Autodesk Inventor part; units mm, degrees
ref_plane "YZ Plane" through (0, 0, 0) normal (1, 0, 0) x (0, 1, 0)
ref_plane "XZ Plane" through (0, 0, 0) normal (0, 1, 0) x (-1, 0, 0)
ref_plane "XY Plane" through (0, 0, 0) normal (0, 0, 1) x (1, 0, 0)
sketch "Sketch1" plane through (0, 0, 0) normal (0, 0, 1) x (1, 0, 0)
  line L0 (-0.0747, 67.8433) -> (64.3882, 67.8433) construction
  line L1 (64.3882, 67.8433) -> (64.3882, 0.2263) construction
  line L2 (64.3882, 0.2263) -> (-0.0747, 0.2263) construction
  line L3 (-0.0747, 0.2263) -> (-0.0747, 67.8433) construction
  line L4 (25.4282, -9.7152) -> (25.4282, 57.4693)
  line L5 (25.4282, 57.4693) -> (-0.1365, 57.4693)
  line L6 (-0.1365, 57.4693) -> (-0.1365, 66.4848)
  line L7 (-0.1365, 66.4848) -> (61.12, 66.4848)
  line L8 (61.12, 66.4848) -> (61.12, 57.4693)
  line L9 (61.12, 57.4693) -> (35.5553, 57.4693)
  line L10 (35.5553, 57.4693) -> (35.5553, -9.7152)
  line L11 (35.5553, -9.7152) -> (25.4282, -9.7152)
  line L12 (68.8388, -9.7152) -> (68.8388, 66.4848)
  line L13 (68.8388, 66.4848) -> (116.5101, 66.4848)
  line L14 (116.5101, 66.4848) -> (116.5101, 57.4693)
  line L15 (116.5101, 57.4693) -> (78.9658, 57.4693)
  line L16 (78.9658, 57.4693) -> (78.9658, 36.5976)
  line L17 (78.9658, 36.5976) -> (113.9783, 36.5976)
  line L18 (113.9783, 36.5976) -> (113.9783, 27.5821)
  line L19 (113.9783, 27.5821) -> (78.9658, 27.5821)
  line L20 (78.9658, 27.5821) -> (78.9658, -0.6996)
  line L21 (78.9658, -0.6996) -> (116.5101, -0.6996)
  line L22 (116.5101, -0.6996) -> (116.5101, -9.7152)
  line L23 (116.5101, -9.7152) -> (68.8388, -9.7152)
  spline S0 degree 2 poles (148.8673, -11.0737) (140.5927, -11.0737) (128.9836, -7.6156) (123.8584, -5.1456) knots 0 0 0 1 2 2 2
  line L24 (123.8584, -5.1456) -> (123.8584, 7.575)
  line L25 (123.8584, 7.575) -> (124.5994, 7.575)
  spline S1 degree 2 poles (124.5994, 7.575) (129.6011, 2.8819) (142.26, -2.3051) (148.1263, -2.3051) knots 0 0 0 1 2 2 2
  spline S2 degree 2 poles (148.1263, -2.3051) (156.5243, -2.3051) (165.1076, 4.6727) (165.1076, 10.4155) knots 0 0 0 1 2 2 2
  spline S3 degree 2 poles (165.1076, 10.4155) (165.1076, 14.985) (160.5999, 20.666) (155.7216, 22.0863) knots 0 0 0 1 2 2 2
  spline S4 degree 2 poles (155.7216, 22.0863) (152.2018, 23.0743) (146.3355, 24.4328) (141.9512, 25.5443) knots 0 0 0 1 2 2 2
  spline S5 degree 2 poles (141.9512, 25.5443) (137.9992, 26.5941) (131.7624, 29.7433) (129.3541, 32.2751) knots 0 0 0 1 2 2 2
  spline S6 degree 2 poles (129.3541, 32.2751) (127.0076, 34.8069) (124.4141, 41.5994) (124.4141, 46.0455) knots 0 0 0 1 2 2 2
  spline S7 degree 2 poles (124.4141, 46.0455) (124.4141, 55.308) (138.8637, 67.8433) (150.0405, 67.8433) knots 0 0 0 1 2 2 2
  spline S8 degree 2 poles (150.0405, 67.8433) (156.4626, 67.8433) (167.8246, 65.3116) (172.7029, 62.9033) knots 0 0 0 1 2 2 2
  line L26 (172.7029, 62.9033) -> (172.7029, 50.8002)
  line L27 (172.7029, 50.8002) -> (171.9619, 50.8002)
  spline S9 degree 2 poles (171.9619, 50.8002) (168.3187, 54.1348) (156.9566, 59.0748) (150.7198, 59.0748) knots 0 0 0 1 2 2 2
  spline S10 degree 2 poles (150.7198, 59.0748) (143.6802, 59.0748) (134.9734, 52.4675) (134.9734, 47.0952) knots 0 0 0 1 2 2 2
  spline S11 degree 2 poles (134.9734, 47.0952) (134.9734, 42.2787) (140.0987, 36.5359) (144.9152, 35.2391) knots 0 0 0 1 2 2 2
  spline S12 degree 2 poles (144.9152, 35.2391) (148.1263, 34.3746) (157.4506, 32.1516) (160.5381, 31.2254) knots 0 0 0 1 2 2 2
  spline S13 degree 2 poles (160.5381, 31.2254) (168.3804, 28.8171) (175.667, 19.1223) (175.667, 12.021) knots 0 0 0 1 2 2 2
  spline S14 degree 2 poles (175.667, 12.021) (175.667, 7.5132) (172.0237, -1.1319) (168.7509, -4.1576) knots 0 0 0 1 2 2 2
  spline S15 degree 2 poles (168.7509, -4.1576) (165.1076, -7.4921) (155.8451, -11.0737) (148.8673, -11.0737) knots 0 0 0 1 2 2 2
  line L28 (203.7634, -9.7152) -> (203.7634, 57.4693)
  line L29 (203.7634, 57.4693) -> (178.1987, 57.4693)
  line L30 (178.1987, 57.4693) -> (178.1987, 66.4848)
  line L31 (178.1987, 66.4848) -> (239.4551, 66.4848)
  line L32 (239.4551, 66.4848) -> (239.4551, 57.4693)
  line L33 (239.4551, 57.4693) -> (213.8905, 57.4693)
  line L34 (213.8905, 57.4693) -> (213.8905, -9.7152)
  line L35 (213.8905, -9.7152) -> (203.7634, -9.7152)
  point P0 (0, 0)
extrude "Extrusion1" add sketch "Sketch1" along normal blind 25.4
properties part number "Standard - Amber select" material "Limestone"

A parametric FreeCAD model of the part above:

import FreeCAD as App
import Part
import Sketcher
from FreeCAD import Vector
Q = App.Units.Quantity


def add_polygon(sketch, points):
    """Adds a closed chain of lines whose ends are joined by coincident constraints."""
    first, n = sketch.GeometryCount, len(points)
    for a, b in zip(points, points[1:] + points[:1]):
        sketch.addGeometry(Part.LineSegment(App.Vector(*a, 0), App.Vector(*b, 0)), False)
    for i in range(n):
        sketch.addConstraint(Sketcher.Constraint("Coincident", first + i, 2, first + (i + 1) % n, 1))

doc = App.newDocument("Part")
body = doc.addObject("PartDesign::Body", "Body")
body.AllowCompound = True

sketch1 = body.newObject("Sketcher::SketchObject", "Sketch")
sketch1.AttachmentSupport = (doc.getObject("XY_Plane"), [""])
sketch1.MapMode = "FlatFace"
add_polygon(sketch1, [(25.4282, 57.4693), (25.4282, -9.7152), (35.5553, -9.7152), (35.5553, 57.4693), (61.12, 57.4693), (61.12, 66.4848), (-0.1365, 66.4848), (-0.1365, 57.4693)])
add_polygon(sketch1, [(68.8388, 66.4848), (68.8388, -9.7152), (116.5101, -9.7152), (116.5101, -0.6996), (78.9658, -0.6996), (78.9658, 27.5821), (113.9783, 27.5821), (113.9783, 36.5976), (78.9658, 36.5976), (78.9658, 57.4693), (116.5101, 57.4693), (116.5101, 66.4848)])
sketch1.addGeometry(Part.BSplineCurve([Vector(148.8673, -11.0737, 0), Vector(140.5927, -11.0737, 0), Vector(128.9836, -7.6156, 0), Vector(123.8584, -5.1456, 0)], [3, 1, 3], [0, 1, 2], False, 2, [1, 1, 1, 1], False), False)
sketch1.addGeometry(Part.BSplineCurve([Vector(168.7509, -4.1576, 0), Vector(165.1076, -7.4921, 0), Vector(155.8451, -11.0737, 0), Vector(148.8673, -11.0737, 0)], [3, 1, 3], [0, 1, 2], False, 2, [1, 1, 1, 1], False), False)
sketch1.addGeometry(Part.BSplineCurve([Vector(175.667, 12.021, 0), Vector(175.667, 7.5132, 0), Vector(172.0237, -1.1319, 0), Vector(168.7509, -4.1576, 0)], [3, 1, 3], [0, 1, 2], False, 2, [1, 1, 1, 1], False), False)
sketch1.addGeometry(Part.BSplineCurve([Vector(160.5381, 31.2254, 0), Vector(168.3804, 28.8171, 0), Vector(175.667, 19.1223, 0), Vector(175.667, 12.021, 0)], [3, 1, 3], [0, 1, 2], False, 2, [1, 1, 1, 1], False), False)
sketch1.addGeometry(Part.BSplineCurve([Vector(144.9152, 35.2391, 0), Vector(148.1263, 34.3746, 0), Vector(157.4506, 32.1516, 0), Vector(160.5381, 31.2254, 0)], [3, 1, 3], [0, 1, 2], False, 2, [1, 1, 1, 1], False), False)
sketch1.addGeometry(Part.BSplineCurve([Vector(134.9734, 47.0952, 0), Vector(134.9734, 42.2787, 0), Vector(140.0987, 36.5359, 0), Vector(144.9152, 35.2391, 0)], [3, 1, 3], [0, 1, 2], False, 2, [1, 1, 1, 1], False), False)
sketch1.addGeometry(Part.BSplineCurve([Vector(150.7198, 59.0748, 0), Vector(143.6802, 59.0748, 0), Vector(134.9734, 52.4675, 0), Vector(134.9734, 47.0952, 0)], [3, 1, 3], [0, 1, 2], False, 2, [1, 1, 1, 1], False), False)
sketch1.addGeometry(Part.BSplineCurve([Vector(171.9619, 50.8002, 0), Vector(168.3187, 54.1348, 0), Vector(156.9566, 59.0748, 0), Vector(150.7198, 59.0748, 0)], [3, 1, 3], [0, 1, 2], False, 2, [1, 1, 1, 1], False), False)
sketch1.addGeometry(Part.LineSegment(Vector(171.9619, 50.8002, 0), Vector(172.7029, 50.8002, 0)), False)
sketch1.addGeometry(Part.LineSegment(Vector(172.7029, 50.8002, 0), Vector(172.7029, 62.9033, 0)), False)
sketch1.addGeometry(Part.BSplineCurve([Vector(150.0405, 67.8433, 0), Vector(156.4626, 67.8433, 0), Vector(167.8246, 65.3116, 0), Vector(172.7029, 62.9033, 0)], [3, 1, 3], [0, 1, 2], False, 2, [1, 1, 1, 1], False), False)
sketch1.addGeometry(Part.BSplineCurve([Vector(124.4141, 46.0455, 0), Vector(124.4141, 55.308, 0), Vector(138.8637, 67.8433, 0), Vector(150.0405, 67.8433, 0)], [3, 1, 3], [0, 1, 2], False, 2, [1, 1, 1, 1], False), False)
sketch1.addGeometry(Part.BSplineCurve([Vector(129.3541, 32.2751, 0), Vector(127.0076, 34.8069, 0), Vector(124.4141, 41.5994, 0), Vector(124.4141, 46.0455, 0)], [3, 1, 3], [0, 1, 2], False, 2, [1, 1, 1, 1], False), False)
sketch1.addGeometry(Part.BSplineCurve([Vector(141.9512, 25.5443, 0), Vector(137.9992, 26.5941, 0), Vector(131.7624, 29.7433, 0), Vector(129.3541, 32.2751, 0)], [3, 1, 3], [0, 1, 2], False, 2, [1, 1, 1, 1], False), False)
sketch1.addGeometry(Part.BSplineCurve([Vector(155.7216, 22.0863, 0), Vector(152.2018, 23.0743, 0), Vector(146.3355, 24.4328, 0), Vector(141.9512, 25.5443, 0)], [3, 1, 3], [0, 1, 2], False, 2, [1, 1, 1, 1], False), False)
sketch1.addGeometry(Part.BSplineCurve([Vector(165.1076, 10.4155, 0), Vector(165.1076, 14.985, 0), Vector(160.5999, 20.666, 0), Vector(155.7216, 22.0863, 0)], [3, 1, 3], [0, 1, 2], False, 2, [1, 1, 1, 1], False), False)
sketch1.addGeometry(Part.BSplineCurve([Vector(148.1263, -2.3051, 0), Vector(156.5243, -2.3051, 0), Vector(165.1076, 4.6727, 0), Vector(165.1076, 10.4155, 0)], [3, 1, 3], [0, 1, 2], False, 2, [1, 1, 1, 1], False), False)
sketch1.addGeometry(Part.BSplineCurve([Vector(124.5994, 7.575, 0), Vector(129.6011, 2.8819, 0), Vector(142.26, -2.3051, 0), Vector(148.1263, -2.3051, 0)], [3, 1, 3], [0, 1, 2], False, 2, [1, 1, 1, 1], False), False)
sketch1.addGeometry(Part.LineSegment(Vector(124.5994, 7.575, 0), Vector(123.8584, 7.575, 0)), False)
sketch1.addGeometry(Part.LineSegment(Vector(123.8584, 7.575, 0), Vector(123.8584, -5.1456, 0)), False)
add_polygon(sketch1, [(203.7634, 57.4693), (203.7634, -9.7152), (213.8905, -9.7152), (213.8905, 57.4693), (239.4551, 57.4693), (239.4551, 66.4848), (178.1987, 66.4848), (178.1987, 57.4693)])
sketch1.addConstraint([
    Sketcher.Constraint("Block", 20),
    Sketcher.Constraint("Block", 21),
    Sketcher.Constraint("Block", 22),
    Sketcher.Constraint("Block", 23),
    Sketcher.Constraint("Block", 24),
    Sketcher.Constraint("Block", 25),
    Sketcher.Constraint("Block", 26),
    Sketcher.Constraint("Block", 27),
    Sketcher.Constraint("Block", 30),
    Sketcher.Constraint("Block", 31),
    Sketcher.Constraint("Block", 32),
    Sketcher.Constraint("Block", 33),
    Sketcher.Constraint("Block", 34),
    Sketcher.Constraint("Block", 35),
    Sketcher.Constraint("Block", 36),
    Sketcher.Constraint("Block", 37),
    Sketcher.Constraint("Coincident", 27, 1, 28, 1),
    Sketcher.Constraint("Coincident", 28, 2, 29, 1),
    Sketcher.Constraint("Coincident", 29, 2, 30, 2),
    Sketcher.Constraint("Coincident", 37, 1, 38, 1),
    Sketcher.Constraint("Coincident", 38, 2, 39, 1),
    Sketcher.Constraint("Coincident", 39, 2, 20, 2),
    Sketcher.Constraint("Vertical", 0),
    Sketcher.Constraint("Horizontal", 1),
    Sketcher.Constraint("Vertical", 2),
    Sketcher.Constraint("Horizontal", 3),
    Sketcher.Constraint("Vertical", 4),
    Sketcher.Constraint("Horizontal", 5),
    Sketcher.Constraint("Vertical", 6),
    Sketcher.Constraint("Horizontal", 7),
    Sketcher.Constraint("Vertical", 8),
    Sketcher.Constraint("Horizontal", 9),
    Sketcher.Constraint("Vertical", 10),
    Sketcher.Constraint("Horizontal", 11),
    Sketcher.Constraint("Vertical", 12),
    Sketcher.Constraint("Horizontal", 13),
    Sketcher.Constraint("Vertical", 14),
    Sketcher.Constraint("Horizontal", 15),
    Sketcher.Constraint("Vertical", 16),
    Sketcher.Constraint("Horizontal", 17),
    Sketcher.Constraint("Vertical", 18),
    Sketcher.Constraint("Horizontal", 19),
    Sketcher.Constraint("Horizontal", 28),
    Sketcher.Constraint("Vertical", 29),
    Sketcher.Constraint("Horizontal", 38),
    Sketcher.Constraint("Vertical", 39),
    Sketcher.Constraint("Vertical", 40),
    Sketcher.Constraint("Horizontal", 41),
    Sketcher.Constraint("Vertical", 42),
    Sketcher.Constraint("Horizontal", 43),
    Sketcher.Constraint("Vertical", 44),
    Sketcher.Constraint("Horizontal", 45),
    Sketcher.Constraint("Vertical", 46),
    Sketcher.Constraint("Horizontal", 47),
    Sketcher.Constraint("Horizontal", 3, 2, 6, 2),
    Sketcher.Constraint("Horizontal", 1, 2, 8, 2),
    Sketcher.Constraint("Horizontal", 7, 2, 16, 2),
    Sketcher.Constraint("Horizontal", 5, 2, 18, 2),
    Sketcher.Constraint("Horizontal", 9, 2, 40, 2),
    Sketcher.Constraint("Horizontal", 17, 2, 42, 2),
    Sketcher.Constraint("Horizontal", 19, 2, 44, 2),
    Sketcher.Constraint("Horizontal", 43, 2, 46, 2),
    Sketcher.Constraint("Vertical", 12, 2, 15, 2),
    Sketcher.Constraint("Vertical", 10, 2, 17, 2),
    Sketcher.Constraint("Equal", 3, 7),
    Sketcher.Constraint("Equal", 1, 41),
    Sketcher.Constraint("Equal", 7, 43),
    Sketcher.Constraint("Equal", 5, 45),
    Sketcher.Constraint("Equal", 6, 10),
    Sketcher.Constraint("Equal", 10, 14),
    Sketcher.Constraint("DistanceY", 8, 2, 8, 1, Q("3 in")),
    Sketcher.Constraint("DistanceX", 1, 1, 1, 2, Q("0.3987 in")),
    Sketcher.Constraint("DistanceX", -1, 1, 9, 2, Q("4.587 in")),
    Sketcher.Constraint("DistanceX", 14, 2, 28, 2, Q("2.312 in")),
    Sketcher.Constraint("DistanceY", 29, 2, 18, 2, Q("0.141 in")),
    Sketcher.Constraint("DistanceX", 3, 1, 3, 2, Q("25.5647 mm")),
    Sketcher.Constraint("DistanceX", 9, 1, 9, 2, Q("47.6713 mm")),
    Sketcher.Constraint("DistanceX", 11, 2, 11, 1, Q("37.5443 mm")),
    Sketcher.Constraint("DistanceY", 0, 2, 0, 1, Q("67.1845 mm")),
    Sketcher.Constraint("DistanceY", 12, 1, 12, 2, Q("28.2817 mm")),
    Sketcher.Constraint("DistanceX", -1, 1, 0, 2, Q("1.0011 in")),
    Sketcher.Constraint("DistanceX", -1, 1, 45, 2, Q("7.0157 in")),
])
pad1 = body.newObject("PartDesign::Pad", "Pad")
pad1.Profile = sketch1
pad1.Length = Q("1 in")

doc.recompute()
